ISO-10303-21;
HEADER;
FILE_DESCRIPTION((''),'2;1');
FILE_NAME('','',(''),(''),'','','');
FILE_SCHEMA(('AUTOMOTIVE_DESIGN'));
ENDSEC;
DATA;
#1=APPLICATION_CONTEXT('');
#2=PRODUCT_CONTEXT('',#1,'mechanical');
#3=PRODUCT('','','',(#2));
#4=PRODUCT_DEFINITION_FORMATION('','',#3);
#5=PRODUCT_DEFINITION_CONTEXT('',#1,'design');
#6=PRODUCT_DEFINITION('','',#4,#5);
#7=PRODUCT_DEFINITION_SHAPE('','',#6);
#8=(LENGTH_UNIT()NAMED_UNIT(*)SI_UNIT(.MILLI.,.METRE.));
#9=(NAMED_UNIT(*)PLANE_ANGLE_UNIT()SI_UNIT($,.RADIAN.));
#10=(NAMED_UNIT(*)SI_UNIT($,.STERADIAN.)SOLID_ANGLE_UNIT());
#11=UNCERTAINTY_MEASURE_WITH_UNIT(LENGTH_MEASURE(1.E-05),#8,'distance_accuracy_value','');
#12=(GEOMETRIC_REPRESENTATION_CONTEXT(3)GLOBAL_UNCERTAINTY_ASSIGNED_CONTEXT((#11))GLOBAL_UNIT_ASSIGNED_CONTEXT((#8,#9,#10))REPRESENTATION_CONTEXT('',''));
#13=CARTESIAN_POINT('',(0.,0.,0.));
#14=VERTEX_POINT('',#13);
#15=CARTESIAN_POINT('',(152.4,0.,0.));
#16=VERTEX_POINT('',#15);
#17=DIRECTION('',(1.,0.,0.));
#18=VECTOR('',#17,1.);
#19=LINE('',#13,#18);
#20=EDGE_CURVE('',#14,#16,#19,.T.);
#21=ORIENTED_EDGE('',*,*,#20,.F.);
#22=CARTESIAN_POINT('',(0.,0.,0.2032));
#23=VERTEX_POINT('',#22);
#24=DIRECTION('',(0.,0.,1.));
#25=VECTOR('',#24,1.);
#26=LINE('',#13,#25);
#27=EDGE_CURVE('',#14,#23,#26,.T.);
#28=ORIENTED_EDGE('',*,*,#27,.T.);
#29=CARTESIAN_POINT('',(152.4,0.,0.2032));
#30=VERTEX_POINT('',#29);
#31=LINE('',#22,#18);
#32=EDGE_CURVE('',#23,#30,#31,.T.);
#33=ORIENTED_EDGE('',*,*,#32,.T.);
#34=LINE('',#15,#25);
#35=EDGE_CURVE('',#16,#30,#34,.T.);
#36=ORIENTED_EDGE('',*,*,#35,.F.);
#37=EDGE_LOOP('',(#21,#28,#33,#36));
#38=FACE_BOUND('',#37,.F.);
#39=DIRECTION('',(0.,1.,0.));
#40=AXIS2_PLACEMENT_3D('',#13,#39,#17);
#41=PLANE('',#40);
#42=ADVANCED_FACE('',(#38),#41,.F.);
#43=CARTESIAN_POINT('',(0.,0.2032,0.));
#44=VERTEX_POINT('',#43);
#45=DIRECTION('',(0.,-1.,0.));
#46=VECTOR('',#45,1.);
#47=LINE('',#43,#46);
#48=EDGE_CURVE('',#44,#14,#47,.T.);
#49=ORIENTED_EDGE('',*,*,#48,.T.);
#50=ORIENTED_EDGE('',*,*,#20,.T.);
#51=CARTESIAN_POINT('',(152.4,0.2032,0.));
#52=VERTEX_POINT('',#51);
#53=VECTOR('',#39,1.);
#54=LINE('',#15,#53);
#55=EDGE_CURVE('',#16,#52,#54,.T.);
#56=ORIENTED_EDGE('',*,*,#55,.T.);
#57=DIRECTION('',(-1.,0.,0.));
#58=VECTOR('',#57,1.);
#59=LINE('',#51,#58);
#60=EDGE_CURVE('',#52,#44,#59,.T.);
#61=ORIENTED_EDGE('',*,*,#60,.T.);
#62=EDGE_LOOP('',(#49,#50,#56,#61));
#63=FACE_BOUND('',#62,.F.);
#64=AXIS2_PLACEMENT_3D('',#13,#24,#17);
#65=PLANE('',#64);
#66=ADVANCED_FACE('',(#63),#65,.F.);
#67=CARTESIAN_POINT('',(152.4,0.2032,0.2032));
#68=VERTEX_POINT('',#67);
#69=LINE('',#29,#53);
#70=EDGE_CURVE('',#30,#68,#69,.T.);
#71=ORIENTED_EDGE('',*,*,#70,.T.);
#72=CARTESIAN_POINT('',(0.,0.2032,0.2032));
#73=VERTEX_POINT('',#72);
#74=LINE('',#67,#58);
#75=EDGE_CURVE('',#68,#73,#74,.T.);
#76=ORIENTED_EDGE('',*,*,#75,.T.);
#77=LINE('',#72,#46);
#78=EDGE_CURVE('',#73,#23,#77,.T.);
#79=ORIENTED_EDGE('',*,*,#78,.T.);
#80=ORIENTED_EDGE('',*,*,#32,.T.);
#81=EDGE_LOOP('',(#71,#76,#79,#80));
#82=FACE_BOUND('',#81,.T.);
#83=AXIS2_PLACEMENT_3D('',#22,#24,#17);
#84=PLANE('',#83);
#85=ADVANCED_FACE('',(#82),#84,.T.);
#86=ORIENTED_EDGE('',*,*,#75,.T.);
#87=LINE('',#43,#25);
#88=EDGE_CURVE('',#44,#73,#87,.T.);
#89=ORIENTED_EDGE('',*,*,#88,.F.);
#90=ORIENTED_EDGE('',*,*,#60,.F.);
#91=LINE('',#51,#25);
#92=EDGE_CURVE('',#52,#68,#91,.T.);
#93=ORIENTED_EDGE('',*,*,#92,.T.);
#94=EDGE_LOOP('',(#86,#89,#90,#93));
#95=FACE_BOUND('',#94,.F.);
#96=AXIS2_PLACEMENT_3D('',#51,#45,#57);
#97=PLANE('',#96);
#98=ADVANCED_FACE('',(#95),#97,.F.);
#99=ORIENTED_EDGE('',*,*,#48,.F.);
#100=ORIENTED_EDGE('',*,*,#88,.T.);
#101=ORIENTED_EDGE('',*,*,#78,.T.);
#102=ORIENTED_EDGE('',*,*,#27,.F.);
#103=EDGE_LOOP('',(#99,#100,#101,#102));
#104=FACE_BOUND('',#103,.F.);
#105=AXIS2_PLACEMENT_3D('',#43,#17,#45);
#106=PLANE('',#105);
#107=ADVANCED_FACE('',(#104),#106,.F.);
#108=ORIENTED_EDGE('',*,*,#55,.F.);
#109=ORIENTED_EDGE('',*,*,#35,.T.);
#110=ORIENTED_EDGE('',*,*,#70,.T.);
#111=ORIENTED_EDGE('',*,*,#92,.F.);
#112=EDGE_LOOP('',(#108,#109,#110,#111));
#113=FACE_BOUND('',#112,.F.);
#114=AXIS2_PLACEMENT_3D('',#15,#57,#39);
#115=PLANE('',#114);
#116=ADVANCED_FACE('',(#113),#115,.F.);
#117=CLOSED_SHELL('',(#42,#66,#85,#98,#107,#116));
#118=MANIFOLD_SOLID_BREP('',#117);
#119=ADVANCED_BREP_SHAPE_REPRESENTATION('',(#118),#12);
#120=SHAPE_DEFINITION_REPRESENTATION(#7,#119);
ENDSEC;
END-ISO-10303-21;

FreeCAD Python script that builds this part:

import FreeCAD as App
import Part
import Sketcher
Q = App.Units.Quantity


def add_polygon(sketch, points):
    """Adds a closed chain of lines whose ends are joined by coincident constraints."""
    first, n = sketch.GeometryCount, len(points)
    for a, b in zip(points, points[1:] + points[:1]):
        sketch.addGeometry(Part.LineSegment(App.Vector(*a, 0), App.Vector(*b, 0)), False)
    for i in range(n):
        sketch.addConstraint(Sketcher.Constraint("Coincident", first + i, 2, first + (i + 1) % n, 1))

doc = App.newDocument("Part")
body = doc.addObject("PartDesign::Body", "Body")

# Sketch on XY plane
sketch1 = doc.addObject("Sketcher::SketchObject", "Sketch")
body.addObject(sketch1)
sketch1.AttachmentSupport = (doc.XY_Plane, [""])
sketch1.MapMode = "FlatFace"
add_polygon(sketch1, [(0, 0.2), (0, 0), (152.4, 0), (152.4, 0.2)])  # lines 0-3
sketch1.addConstraint([
    Sketcher.Constraint("Vertical", 0),
    Sketcher.Constraint("Horizontal", 1),
    Sketcher.Constraint("Vertical", 2),
    Sketcher.Constraint("Horizontal", 3),
    Sketcher.Constraint("Coincident", 0, 2, -1, 1),
    Sketcher.Constraint("DistanceX", 1, 1, 1, 2, Q("6 in")),
    Sketcher.Constraint("DistanceY", 0, 2, 0, 1, Q("0.008 in")),
])
pad1 = doc.addObject("PartDesign::Pad", "Pad")
body.addObject(pad1)
pad1.Profile = sketch1
pad1.Length = Q("0.008 in")

doc.recompute()
